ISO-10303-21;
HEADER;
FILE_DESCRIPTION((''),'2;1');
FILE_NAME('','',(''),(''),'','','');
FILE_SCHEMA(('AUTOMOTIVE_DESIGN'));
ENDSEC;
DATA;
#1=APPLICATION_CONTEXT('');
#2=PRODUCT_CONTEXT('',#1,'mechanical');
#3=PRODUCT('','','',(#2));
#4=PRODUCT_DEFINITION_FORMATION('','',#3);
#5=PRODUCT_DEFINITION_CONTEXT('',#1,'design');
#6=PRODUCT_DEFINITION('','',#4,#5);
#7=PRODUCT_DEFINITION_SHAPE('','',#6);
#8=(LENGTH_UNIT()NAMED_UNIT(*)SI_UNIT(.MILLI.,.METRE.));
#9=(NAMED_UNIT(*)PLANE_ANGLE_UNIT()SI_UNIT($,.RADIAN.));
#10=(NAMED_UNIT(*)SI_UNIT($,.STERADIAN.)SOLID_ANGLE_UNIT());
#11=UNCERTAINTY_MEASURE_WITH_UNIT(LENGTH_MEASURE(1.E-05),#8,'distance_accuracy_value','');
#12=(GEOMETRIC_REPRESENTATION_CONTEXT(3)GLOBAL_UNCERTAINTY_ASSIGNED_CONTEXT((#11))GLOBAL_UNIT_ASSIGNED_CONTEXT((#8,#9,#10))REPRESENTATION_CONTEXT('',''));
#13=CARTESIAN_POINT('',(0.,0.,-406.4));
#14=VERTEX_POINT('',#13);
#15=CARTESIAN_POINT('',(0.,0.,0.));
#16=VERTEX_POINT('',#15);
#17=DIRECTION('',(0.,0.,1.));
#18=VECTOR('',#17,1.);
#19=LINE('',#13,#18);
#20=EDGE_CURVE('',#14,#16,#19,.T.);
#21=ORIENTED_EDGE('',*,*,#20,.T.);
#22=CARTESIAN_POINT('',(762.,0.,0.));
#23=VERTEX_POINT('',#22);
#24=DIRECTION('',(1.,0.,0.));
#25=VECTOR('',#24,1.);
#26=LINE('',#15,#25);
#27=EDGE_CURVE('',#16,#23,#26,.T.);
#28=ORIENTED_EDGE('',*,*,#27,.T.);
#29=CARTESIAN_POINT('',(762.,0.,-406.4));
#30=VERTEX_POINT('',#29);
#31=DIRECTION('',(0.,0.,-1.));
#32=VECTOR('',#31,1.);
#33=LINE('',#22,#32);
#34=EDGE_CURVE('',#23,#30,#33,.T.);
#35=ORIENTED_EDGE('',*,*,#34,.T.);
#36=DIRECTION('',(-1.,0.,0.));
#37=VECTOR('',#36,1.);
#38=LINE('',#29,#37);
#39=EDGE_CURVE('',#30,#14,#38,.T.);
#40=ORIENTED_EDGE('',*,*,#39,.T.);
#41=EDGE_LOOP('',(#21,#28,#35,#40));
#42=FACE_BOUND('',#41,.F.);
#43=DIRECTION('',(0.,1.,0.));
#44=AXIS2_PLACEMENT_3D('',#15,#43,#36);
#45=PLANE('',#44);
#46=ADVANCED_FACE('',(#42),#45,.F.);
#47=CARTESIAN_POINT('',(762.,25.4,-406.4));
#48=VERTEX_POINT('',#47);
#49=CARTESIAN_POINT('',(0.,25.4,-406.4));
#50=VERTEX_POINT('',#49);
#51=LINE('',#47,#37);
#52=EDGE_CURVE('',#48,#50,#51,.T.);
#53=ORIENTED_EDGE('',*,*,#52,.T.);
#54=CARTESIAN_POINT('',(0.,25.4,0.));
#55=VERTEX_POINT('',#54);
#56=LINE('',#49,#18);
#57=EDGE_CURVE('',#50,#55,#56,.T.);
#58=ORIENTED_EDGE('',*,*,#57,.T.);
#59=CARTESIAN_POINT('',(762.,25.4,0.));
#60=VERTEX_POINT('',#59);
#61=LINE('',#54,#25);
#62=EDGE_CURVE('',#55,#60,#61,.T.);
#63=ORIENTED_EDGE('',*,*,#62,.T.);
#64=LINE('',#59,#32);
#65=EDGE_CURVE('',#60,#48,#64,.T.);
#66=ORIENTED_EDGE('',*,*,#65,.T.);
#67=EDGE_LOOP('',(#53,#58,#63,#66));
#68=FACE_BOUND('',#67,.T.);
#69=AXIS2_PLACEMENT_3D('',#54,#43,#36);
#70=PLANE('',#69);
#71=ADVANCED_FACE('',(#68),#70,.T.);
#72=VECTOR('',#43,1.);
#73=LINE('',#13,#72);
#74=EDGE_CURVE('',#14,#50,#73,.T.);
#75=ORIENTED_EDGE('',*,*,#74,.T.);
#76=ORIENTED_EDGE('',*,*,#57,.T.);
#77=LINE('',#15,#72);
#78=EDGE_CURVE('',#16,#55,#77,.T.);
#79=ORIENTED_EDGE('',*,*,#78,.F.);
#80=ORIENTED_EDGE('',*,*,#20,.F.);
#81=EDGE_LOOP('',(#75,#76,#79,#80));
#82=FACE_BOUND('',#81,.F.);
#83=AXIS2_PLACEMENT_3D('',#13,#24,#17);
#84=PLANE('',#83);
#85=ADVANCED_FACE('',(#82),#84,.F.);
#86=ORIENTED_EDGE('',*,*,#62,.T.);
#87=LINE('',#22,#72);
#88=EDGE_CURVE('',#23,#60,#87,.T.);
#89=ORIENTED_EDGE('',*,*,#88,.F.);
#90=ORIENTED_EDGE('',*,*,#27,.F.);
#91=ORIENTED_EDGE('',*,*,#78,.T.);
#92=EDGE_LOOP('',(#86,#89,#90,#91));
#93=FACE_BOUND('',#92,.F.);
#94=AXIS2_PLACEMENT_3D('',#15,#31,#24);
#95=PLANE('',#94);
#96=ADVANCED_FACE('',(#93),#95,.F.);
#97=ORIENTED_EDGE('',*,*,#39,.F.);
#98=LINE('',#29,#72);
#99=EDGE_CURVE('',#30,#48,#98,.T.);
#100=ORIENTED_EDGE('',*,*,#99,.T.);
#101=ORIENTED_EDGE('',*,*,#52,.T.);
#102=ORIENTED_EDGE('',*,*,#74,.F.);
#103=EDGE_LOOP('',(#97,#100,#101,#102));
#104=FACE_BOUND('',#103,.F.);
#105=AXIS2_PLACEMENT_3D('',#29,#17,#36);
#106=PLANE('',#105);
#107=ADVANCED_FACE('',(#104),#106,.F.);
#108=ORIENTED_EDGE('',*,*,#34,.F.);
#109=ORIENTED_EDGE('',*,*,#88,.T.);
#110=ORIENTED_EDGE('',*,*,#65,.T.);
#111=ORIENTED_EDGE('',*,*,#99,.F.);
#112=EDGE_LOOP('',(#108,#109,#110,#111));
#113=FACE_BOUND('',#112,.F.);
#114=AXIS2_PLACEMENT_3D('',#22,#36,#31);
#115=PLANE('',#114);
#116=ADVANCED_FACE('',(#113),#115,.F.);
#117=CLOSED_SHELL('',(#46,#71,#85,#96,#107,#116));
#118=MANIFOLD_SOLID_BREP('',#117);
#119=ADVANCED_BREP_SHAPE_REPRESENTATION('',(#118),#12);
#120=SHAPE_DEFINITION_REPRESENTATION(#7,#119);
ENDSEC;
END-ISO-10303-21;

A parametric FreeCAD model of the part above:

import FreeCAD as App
import Part
import Sketcher
from FreeCAD import Vector
Q = App.Units.Quantity


def add_polygon(sketch, points):
    """Adds a closed chain of lines whose ends are joined by coincident constraints."""
    first, n = sketch.GeometryCount, len(points)
    for a, b in zip(points, points[1:] + points[:1]):
        sketch.addGeometry(Part.LineSegment(App.Vector(*a, 0), App.Vector(*b, 0)), False)
    for i in range(n):
        sketch.addConstraint(Sketcher.Constraint("Coincident", first + i, 2, first + (i + 1) % n, 1))

doc = App.newDocument("Part")
body = doc.addObject("PartDesign::Body", "Body")

# Sketch on XZ plane
sketch1 = body.newObject("Sketcher::SketchObject", "Sketch")
sketch1.AttachmentSupport = (doc.getObject("XZ_Plane"), [""])
sketch1.MapMode = "FlatFace"
add_polygon(sketch1, [(0, -406.4), (0, 0), (762, 0), (762, -406.4)])  # lines 0-3
sketch1.addConstraint([
    Sketcher.Constraint("Vertical", 0),
    Sketcher.Constraint("Horizontal", 1),
    Sketcher.Constraint("Vertical", 2),
    Sketcher.Constraint("Horizontal", 3),
    Sketcher.Constraint("Coincident", 0, 2, -1, 1),
    Sketcher.Constraint("DistanceX", 1, 1, 1, 2, Q("30 in")),
    Sketcher.Constraint("DistanceY", 0, 1, 0, 2, Q("16 in")),
])
pad1 = body.newObject("PartDesign::Pad", "Pad")
pad1.Profile = sketch1
pad1.Length = Q("1 in")
pad1.Reversed = True

doc.recompute()
